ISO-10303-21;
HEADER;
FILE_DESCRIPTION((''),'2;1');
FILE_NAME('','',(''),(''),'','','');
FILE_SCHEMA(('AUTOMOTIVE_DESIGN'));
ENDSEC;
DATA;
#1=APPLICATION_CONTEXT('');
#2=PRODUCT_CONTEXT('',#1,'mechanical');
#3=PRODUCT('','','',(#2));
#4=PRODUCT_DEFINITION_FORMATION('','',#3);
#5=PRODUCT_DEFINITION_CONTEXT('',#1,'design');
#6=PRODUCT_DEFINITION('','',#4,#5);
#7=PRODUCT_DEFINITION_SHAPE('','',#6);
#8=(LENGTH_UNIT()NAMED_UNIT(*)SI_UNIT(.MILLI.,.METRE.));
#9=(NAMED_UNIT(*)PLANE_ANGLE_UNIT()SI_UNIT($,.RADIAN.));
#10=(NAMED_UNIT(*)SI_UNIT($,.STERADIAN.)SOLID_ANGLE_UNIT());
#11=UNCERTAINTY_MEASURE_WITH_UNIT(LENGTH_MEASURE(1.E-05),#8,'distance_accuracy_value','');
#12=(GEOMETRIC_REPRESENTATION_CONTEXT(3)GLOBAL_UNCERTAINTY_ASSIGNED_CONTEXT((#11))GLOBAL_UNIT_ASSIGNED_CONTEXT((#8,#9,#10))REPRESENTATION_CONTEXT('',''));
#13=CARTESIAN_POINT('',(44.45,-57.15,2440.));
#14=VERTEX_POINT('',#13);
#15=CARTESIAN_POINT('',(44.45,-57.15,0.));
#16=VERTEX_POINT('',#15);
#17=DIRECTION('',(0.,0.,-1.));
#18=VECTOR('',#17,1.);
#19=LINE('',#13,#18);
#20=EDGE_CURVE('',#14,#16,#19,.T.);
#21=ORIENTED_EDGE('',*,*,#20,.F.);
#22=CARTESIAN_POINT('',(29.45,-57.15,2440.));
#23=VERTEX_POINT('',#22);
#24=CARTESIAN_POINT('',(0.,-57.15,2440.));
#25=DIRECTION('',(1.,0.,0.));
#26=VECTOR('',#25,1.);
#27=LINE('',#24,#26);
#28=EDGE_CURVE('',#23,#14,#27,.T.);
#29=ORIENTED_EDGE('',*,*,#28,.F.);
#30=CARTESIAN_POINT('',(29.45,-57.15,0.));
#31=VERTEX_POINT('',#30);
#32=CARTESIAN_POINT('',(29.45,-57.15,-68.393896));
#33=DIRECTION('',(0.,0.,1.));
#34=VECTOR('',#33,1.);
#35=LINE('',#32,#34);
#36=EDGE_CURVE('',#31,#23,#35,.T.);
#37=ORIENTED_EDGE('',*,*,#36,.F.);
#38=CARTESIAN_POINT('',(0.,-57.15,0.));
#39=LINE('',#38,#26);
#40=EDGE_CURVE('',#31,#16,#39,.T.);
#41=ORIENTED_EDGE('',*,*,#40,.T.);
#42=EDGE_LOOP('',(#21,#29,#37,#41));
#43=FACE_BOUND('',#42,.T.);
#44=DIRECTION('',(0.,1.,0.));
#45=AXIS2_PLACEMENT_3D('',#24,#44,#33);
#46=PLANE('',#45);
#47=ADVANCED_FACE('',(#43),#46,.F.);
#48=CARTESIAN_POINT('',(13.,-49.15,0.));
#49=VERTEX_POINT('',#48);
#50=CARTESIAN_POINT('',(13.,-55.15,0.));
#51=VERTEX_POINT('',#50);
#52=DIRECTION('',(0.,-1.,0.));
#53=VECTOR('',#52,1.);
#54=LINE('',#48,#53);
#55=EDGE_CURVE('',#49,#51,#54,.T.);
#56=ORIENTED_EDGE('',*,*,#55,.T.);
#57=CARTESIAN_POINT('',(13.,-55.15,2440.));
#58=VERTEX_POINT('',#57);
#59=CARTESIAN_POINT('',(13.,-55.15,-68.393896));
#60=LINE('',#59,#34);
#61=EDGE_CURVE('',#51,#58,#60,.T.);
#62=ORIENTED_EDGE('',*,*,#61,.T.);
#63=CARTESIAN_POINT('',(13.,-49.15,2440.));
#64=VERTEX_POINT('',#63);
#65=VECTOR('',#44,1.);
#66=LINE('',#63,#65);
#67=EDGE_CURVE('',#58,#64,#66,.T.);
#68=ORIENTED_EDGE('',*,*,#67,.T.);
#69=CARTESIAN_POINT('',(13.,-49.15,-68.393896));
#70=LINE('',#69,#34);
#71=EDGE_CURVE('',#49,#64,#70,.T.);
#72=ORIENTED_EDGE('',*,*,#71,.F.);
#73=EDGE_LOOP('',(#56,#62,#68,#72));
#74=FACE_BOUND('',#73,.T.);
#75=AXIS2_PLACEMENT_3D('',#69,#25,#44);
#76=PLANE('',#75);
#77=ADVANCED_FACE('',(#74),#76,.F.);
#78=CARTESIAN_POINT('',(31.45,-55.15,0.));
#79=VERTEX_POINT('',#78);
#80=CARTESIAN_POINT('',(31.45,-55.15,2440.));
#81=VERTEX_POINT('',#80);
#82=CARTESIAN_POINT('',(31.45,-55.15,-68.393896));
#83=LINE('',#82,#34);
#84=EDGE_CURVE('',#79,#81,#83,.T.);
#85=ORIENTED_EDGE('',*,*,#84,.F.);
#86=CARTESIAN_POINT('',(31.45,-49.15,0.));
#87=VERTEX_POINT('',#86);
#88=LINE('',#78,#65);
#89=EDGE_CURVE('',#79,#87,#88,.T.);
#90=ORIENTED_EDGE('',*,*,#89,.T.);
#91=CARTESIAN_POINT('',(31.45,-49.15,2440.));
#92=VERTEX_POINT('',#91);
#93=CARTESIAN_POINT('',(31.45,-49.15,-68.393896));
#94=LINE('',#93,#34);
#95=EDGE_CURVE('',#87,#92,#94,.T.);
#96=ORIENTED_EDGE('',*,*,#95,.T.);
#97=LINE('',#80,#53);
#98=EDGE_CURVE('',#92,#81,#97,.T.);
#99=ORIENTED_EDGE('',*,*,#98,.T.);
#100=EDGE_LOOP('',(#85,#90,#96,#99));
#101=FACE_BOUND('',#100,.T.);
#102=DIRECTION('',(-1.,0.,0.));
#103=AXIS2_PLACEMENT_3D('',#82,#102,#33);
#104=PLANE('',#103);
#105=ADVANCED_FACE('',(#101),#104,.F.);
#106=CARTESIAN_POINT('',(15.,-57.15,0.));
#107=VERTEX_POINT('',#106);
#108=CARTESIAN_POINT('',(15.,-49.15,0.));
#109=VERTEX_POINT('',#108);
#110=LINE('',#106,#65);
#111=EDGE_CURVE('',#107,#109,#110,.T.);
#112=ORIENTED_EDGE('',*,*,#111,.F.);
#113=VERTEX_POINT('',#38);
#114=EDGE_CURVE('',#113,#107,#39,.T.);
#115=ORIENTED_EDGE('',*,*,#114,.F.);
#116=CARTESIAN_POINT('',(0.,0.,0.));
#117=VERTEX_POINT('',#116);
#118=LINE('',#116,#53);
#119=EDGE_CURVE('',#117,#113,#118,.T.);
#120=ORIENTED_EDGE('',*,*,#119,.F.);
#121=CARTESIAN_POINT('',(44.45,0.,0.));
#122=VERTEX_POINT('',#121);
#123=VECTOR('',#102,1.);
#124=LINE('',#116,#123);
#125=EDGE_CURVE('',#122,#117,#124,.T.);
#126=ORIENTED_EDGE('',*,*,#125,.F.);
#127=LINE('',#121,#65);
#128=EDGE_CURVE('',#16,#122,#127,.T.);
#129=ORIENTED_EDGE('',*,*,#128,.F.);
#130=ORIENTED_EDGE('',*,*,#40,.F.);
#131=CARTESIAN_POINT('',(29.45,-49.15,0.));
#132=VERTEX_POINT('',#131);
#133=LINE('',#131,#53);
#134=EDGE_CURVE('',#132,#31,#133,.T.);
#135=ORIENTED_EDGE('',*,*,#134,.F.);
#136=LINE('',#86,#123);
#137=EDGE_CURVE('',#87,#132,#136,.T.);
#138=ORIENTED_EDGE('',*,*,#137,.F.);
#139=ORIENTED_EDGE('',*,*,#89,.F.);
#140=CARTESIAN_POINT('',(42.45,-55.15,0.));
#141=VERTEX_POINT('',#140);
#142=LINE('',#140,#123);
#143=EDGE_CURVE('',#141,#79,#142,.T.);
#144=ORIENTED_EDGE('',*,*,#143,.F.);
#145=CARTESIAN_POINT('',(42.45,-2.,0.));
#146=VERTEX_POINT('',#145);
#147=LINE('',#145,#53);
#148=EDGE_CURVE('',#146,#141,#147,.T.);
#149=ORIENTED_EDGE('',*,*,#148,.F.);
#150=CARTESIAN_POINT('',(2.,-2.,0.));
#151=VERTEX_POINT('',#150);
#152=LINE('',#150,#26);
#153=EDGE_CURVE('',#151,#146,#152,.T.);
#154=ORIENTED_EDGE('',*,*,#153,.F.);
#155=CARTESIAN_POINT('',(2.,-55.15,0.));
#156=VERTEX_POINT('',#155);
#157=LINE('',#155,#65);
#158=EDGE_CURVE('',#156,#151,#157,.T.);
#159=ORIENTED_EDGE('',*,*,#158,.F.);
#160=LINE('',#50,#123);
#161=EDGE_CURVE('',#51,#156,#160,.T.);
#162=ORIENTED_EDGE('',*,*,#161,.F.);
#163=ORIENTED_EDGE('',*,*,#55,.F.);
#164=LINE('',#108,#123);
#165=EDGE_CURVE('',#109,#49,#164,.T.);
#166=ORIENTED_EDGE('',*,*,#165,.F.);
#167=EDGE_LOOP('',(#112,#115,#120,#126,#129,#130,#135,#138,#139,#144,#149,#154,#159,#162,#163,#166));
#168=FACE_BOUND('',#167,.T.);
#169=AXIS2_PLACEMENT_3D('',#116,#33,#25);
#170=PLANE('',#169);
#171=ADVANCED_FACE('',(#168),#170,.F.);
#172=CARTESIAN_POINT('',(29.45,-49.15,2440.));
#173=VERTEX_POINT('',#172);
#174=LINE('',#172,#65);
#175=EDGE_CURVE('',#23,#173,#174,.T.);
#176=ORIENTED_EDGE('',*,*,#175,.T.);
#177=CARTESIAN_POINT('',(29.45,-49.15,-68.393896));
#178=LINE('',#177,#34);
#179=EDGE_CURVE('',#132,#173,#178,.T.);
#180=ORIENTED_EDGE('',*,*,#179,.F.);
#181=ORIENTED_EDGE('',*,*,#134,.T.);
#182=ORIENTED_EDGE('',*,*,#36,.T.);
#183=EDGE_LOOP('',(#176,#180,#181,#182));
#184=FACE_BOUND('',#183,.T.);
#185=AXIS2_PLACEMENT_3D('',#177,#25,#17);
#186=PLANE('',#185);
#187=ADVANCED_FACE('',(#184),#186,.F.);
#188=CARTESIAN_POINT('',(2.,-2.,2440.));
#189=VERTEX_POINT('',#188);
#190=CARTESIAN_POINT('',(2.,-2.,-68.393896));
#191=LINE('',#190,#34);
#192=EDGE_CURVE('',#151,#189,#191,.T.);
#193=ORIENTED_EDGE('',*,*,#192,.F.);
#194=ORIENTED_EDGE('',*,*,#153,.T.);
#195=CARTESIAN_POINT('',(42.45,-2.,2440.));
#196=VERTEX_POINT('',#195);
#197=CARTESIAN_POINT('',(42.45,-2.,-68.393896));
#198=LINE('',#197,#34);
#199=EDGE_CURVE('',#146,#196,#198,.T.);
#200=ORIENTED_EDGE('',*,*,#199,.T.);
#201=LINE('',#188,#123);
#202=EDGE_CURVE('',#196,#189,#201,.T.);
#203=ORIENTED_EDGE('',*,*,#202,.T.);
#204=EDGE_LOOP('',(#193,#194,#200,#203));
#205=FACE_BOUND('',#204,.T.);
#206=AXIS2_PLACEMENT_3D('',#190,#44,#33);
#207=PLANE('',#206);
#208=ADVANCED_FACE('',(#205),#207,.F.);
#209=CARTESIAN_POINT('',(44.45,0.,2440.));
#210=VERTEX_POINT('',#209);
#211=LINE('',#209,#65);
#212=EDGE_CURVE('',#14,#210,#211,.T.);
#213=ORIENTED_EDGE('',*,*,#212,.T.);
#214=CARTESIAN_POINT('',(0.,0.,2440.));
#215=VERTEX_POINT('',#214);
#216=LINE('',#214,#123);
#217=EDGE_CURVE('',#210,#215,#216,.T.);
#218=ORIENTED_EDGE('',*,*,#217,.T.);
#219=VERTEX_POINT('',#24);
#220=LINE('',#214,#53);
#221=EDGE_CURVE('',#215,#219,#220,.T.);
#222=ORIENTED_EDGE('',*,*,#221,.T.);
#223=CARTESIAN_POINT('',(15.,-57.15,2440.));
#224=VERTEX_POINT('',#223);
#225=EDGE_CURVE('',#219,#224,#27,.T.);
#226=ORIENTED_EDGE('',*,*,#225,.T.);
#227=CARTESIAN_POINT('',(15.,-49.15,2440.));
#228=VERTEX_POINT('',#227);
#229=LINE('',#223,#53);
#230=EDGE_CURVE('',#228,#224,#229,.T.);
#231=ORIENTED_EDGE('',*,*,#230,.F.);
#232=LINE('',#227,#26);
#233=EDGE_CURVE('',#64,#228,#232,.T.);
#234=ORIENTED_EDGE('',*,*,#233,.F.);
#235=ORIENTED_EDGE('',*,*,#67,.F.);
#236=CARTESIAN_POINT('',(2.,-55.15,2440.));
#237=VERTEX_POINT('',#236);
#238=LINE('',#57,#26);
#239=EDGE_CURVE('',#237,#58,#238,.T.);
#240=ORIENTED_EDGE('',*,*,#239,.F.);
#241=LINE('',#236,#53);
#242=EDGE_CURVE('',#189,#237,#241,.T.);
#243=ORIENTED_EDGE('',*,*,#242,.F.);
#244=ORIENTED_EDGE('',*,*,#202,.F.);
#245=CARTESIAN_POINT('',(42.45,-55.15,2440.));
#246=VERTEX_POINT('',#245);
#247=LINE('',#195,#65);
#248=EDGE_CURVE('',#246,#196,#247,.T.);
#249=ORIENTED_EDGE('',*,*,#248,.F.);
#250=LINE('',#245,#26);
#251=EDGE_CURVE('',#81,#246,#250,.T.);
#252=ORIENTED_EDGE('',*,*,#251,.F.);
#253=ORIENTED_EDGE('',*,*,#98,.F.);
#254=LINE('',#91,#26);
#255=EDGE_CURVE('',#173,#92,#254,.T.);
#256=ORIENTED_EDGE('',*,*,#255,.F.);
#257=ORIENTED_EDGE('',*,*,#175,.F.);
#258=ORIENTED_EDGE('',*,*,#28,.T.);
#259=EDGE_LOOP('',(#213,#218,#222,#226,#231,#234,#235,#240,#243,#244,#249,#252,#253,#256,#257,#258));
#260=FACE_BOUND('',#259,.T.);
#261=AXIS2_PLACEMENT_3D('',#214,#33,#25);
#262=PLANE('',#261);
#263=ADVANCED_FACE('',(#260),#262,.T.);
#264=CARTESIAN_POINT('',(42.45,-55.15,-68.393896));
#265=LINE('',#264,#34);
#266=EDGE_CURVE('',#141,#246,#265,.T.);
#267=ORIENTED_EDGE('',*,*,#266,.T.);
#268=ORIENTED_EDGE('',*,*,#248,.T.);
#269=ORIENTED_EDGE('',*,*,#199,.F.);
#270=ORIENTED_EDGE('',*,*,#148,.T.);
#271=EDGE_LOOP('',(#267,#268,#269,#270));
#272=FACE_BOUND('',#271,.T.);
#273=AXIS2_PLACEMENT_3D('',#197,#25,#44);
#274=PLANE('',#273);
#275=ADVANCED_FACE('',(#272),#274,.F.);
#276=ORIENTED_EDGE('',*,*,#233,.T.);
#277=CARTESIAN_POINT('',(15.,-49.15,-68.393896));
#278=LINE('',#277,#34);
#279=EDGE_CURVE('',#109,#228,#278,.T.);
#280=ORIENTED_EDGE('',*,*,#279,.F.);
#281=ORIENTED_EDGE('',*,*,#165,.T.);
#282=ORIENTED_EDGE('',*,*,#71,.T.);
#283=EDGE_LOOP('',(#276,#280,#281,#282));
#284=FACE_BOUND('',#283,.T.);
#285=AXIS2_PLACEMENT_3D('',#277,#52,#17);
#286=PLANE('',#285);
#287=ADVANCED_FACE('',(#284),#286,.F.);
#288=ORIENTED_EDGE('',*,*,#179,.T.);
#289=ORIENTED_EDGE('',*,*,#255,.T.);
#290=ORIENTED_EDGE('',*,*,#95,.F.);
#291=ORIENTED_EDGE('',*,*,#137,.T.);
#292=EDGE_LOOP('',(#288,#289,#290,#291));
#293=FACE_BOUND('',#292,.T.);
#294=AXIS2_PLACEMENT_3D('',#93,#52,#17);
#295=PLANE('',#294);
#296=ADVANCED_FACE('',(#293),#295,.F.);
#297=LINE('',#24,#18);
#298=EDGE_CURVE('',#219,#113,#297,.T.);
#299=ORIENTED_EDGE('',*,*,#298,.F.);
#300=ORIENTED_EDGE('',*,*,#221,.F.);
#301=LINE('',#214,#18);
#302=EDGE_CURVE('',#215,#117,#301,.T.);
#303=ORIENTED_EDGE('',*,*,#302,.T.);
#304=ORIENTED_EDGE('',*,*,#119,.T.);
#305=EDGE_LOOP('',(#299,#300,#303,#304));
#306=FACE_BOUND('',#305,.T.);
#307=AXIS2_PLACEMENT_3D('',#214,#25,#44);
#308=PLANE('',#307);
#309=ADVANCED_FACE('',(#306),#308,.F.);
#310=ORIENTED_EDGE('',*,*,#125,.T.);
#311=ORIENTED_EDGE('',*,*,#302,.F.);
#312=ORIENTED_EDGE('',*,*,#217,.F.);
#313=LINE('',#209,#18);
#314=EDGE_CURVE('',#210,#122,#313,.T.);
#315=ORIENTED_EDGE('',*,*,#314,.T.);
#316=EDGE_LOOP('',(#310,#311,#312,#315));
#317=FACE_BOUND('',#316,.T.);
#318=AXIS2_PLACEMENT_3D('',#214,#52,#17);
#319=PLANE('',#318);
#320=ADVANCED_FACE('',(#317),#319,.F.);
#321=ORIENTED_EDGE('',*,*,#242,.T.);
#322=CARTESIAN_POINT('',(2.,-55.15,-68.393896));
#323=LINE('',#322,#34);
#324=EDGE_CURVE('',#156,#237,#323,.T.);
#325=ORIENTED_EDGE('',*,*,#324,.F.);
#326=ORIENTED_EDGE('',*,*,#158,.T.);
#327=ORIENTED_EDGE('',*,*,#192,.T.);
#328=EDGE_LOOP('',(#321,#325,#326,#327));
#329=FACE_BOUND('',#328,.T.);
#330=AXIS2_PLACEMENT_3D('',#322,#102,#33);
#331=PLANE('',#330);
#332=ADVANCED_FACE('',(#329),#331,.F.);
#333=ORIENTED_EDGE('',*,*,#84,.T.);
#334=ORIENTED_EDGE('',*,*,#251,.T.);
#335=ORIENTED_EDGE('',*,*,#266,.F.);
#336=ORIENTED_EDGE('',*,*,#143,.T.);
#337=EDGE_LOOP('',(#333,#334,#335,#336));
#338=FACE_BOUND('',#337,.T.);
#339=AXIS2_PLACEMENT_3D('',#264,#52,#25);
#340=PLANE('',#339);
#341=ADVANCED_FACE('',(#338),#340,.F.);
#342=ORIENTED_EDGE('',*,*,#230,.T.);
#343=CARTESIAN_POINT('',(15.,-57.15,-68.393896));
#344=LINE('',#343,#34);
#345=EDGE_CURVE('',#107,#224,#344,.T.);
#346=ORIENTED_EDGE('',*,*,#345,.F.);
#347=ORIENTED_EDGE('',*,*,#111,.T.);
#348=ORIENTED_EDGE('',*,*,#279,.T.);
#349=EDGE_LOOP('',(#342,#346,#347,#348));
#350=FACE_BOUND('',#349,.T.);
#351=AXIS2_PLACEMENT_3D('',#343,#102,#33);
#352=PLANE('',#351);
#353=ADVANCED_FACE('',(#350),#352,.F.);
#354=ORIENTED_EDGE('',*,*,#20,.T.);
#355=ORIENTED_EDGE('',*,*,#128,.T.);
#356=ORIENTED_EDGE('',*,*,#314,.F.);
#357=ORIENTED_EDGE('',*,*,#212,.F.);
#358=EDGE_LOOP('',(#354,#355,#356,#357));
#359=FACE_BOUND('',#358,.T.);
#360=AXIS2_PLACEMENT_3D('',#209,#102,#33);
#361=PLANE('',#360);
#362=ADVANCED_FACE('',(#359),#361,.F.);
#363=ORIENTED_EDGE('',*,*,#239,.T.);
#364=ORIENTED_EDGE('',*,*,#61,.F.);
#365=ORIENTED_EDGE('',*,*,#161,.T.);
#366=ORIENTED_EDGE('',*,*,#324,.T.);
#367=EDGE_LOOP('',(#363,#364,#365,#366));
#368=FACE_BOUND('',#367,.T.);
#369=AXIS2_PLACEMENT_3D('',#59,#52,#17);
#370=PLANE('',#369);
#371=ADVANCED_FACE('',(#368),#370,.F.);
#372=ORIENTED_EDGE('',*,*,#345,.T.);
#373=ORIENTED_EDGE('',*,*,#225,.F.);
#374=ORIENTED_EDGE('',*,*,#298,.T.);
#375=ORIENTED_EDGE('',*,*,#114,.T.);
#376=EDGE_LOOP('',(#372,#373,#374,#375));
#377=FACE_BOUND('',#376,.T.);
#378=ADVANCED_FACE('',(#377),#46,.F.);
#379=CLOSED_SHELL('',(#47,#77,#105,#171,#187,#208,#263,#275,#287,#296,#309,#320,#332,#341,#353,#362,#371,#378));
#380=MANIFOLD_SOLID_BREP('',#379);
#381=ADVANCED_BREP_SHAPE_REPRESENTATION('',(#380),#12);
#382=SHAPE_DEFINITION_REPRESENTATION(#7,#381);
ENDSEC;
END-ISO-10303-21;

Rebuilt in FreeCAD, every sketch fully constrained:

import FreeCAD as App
import Part
import Sketcher

V = App.Vector


def add_polygon(sketch, points):
    """Adds a closed chain of lines whose ends are joined by coincident constraints."""
    first, n = sketch.GeometryCount, len(points)
    for a, b in zip(points, points[1:] + points[:1]):
        sketch.addGeometry(Part.LineSegment(App.Vector(*a, 0), App.Vector(*b, 0)), False)
    for i in range(n):
        sketch.addConstraint(Sketcher.Constraint("Coincident", first + i, 2, first + (i + 1) % n, 1))

doc = App.newDocument("Part")
body = doc.addObject("PartDesign::Body", "Body")

sketch1 = body.newObject("Sketcher::SketchObject", "Sketch")
sketch1.AttachmentSupport = (doc.getObject("XY_Plane"), [""])
sketch1.MapMode = "FlatFace"
add_polygon(sketch1, [(0, 0), (0, -57), (44, -57), (44, 0)])
sketch1.addConstraint([
    Sketcher.Constraint("Vertical", 0),
    Sketcher.Constraint("Horizontal", 1),
    Sketcher.Constraint("Vertical", 2),
    Sketcher.Constraint("Horizontal", 3),
    Sketcher.Constraint("Coincident", 3, 2, -1, 1),
    Sketcher.Constraint("DistanceX", 1, 1, 1, 2, 44.45),
    Sketcher.Constraint("DistanceY", 0, 2, 0, 1, 57.15),
])
pad1 = body.newObject("PartDesign::Pad", "Pad")
pad1.Profile = sketch1
pad1.Length = 2440

sketch2 = body.newObject("Sketcher::SketchObject", "Sketch001")
sketch2.AttachmentSupport = (doc.getObject("XY_Plane"), [""])
sketch2.MapMode = "FlatFace"
sketch2.AttachmentOffset = App.Placement(V(0, 0, 2440), App.Rotation())
add_polygon(sketch2, [(15, -49.1), (15, -57.1), (29.4, -57.1), (29.4, -49.1), (31.4, -49.1), (31.4, -55.1), (42.5, -55.1), (42.5, -2), (2, -2), (2, -55.1), (13, -55.1), (13, -49.1)])
sketch2.addConstraint([
    Sketcher.Constraint("Vertical", 0),
    Sketcher.Constraint("Horizontal", 1),
    Sketcher.Constraint("Vertical", 2),
    Sketcher.Constraint("Horizontal", 3),
    Sketcher.Constraint("Vertical", 4),
    Sketcher.Constraint("Horizontal", 5),
    Sketcher.Constraint("Vertical", 6),
    Sketcher.Constraint("Horizontal", 7),
    Sketcher.Constraint("Vertical", 8),
    Sketcher.Constraint("Horizontal", 9),
    Sketcher.Constraint("Vertical", 10),
    Sketcher.Constraint("Horizontal", 11),
    Sketcher.Constraint("Horizontal", 5, 2, 8, 2),
    Sketcher.Constraint("Horizontal", 3, 2, 10, 2),
    Sketcher.Constraint("Equal", 5, 9),
    Sketcher.Constraint("Equal", 3, 11),
    Sketcher.Constraint("DistanceX", 3, 1, 3, 2, 2.0),
    Sketcher.Constraint("DistanceX", 5, 1, 5, 2, 11.0),
    Sketcher.Constraint("DistanceY", 0, 2, 0, 1, 8.0),
    Sketcher.Constraint("DistanceY", 4, 2, 4, 1, 6.0),
    Sketcher.Constraint("DistanceX", -1, 1, 0, 2, 15.0),
    Sketcher.Constraint("DistanceY", 6, 2, -1, 1, 2.0),
    Sketcher.Constraint("DistanceX", 1, 1, 1, 2, 14.45),
    Sketcher.Constraint("DistanceY", 6, 1, 6, 2, 53.15),
])
pocket1 = body.newObject("PartDesign::Pocket", "Pocket")
pocket1.Profile = sketch2
pocket1.Length = 2440

doc.recompute()
